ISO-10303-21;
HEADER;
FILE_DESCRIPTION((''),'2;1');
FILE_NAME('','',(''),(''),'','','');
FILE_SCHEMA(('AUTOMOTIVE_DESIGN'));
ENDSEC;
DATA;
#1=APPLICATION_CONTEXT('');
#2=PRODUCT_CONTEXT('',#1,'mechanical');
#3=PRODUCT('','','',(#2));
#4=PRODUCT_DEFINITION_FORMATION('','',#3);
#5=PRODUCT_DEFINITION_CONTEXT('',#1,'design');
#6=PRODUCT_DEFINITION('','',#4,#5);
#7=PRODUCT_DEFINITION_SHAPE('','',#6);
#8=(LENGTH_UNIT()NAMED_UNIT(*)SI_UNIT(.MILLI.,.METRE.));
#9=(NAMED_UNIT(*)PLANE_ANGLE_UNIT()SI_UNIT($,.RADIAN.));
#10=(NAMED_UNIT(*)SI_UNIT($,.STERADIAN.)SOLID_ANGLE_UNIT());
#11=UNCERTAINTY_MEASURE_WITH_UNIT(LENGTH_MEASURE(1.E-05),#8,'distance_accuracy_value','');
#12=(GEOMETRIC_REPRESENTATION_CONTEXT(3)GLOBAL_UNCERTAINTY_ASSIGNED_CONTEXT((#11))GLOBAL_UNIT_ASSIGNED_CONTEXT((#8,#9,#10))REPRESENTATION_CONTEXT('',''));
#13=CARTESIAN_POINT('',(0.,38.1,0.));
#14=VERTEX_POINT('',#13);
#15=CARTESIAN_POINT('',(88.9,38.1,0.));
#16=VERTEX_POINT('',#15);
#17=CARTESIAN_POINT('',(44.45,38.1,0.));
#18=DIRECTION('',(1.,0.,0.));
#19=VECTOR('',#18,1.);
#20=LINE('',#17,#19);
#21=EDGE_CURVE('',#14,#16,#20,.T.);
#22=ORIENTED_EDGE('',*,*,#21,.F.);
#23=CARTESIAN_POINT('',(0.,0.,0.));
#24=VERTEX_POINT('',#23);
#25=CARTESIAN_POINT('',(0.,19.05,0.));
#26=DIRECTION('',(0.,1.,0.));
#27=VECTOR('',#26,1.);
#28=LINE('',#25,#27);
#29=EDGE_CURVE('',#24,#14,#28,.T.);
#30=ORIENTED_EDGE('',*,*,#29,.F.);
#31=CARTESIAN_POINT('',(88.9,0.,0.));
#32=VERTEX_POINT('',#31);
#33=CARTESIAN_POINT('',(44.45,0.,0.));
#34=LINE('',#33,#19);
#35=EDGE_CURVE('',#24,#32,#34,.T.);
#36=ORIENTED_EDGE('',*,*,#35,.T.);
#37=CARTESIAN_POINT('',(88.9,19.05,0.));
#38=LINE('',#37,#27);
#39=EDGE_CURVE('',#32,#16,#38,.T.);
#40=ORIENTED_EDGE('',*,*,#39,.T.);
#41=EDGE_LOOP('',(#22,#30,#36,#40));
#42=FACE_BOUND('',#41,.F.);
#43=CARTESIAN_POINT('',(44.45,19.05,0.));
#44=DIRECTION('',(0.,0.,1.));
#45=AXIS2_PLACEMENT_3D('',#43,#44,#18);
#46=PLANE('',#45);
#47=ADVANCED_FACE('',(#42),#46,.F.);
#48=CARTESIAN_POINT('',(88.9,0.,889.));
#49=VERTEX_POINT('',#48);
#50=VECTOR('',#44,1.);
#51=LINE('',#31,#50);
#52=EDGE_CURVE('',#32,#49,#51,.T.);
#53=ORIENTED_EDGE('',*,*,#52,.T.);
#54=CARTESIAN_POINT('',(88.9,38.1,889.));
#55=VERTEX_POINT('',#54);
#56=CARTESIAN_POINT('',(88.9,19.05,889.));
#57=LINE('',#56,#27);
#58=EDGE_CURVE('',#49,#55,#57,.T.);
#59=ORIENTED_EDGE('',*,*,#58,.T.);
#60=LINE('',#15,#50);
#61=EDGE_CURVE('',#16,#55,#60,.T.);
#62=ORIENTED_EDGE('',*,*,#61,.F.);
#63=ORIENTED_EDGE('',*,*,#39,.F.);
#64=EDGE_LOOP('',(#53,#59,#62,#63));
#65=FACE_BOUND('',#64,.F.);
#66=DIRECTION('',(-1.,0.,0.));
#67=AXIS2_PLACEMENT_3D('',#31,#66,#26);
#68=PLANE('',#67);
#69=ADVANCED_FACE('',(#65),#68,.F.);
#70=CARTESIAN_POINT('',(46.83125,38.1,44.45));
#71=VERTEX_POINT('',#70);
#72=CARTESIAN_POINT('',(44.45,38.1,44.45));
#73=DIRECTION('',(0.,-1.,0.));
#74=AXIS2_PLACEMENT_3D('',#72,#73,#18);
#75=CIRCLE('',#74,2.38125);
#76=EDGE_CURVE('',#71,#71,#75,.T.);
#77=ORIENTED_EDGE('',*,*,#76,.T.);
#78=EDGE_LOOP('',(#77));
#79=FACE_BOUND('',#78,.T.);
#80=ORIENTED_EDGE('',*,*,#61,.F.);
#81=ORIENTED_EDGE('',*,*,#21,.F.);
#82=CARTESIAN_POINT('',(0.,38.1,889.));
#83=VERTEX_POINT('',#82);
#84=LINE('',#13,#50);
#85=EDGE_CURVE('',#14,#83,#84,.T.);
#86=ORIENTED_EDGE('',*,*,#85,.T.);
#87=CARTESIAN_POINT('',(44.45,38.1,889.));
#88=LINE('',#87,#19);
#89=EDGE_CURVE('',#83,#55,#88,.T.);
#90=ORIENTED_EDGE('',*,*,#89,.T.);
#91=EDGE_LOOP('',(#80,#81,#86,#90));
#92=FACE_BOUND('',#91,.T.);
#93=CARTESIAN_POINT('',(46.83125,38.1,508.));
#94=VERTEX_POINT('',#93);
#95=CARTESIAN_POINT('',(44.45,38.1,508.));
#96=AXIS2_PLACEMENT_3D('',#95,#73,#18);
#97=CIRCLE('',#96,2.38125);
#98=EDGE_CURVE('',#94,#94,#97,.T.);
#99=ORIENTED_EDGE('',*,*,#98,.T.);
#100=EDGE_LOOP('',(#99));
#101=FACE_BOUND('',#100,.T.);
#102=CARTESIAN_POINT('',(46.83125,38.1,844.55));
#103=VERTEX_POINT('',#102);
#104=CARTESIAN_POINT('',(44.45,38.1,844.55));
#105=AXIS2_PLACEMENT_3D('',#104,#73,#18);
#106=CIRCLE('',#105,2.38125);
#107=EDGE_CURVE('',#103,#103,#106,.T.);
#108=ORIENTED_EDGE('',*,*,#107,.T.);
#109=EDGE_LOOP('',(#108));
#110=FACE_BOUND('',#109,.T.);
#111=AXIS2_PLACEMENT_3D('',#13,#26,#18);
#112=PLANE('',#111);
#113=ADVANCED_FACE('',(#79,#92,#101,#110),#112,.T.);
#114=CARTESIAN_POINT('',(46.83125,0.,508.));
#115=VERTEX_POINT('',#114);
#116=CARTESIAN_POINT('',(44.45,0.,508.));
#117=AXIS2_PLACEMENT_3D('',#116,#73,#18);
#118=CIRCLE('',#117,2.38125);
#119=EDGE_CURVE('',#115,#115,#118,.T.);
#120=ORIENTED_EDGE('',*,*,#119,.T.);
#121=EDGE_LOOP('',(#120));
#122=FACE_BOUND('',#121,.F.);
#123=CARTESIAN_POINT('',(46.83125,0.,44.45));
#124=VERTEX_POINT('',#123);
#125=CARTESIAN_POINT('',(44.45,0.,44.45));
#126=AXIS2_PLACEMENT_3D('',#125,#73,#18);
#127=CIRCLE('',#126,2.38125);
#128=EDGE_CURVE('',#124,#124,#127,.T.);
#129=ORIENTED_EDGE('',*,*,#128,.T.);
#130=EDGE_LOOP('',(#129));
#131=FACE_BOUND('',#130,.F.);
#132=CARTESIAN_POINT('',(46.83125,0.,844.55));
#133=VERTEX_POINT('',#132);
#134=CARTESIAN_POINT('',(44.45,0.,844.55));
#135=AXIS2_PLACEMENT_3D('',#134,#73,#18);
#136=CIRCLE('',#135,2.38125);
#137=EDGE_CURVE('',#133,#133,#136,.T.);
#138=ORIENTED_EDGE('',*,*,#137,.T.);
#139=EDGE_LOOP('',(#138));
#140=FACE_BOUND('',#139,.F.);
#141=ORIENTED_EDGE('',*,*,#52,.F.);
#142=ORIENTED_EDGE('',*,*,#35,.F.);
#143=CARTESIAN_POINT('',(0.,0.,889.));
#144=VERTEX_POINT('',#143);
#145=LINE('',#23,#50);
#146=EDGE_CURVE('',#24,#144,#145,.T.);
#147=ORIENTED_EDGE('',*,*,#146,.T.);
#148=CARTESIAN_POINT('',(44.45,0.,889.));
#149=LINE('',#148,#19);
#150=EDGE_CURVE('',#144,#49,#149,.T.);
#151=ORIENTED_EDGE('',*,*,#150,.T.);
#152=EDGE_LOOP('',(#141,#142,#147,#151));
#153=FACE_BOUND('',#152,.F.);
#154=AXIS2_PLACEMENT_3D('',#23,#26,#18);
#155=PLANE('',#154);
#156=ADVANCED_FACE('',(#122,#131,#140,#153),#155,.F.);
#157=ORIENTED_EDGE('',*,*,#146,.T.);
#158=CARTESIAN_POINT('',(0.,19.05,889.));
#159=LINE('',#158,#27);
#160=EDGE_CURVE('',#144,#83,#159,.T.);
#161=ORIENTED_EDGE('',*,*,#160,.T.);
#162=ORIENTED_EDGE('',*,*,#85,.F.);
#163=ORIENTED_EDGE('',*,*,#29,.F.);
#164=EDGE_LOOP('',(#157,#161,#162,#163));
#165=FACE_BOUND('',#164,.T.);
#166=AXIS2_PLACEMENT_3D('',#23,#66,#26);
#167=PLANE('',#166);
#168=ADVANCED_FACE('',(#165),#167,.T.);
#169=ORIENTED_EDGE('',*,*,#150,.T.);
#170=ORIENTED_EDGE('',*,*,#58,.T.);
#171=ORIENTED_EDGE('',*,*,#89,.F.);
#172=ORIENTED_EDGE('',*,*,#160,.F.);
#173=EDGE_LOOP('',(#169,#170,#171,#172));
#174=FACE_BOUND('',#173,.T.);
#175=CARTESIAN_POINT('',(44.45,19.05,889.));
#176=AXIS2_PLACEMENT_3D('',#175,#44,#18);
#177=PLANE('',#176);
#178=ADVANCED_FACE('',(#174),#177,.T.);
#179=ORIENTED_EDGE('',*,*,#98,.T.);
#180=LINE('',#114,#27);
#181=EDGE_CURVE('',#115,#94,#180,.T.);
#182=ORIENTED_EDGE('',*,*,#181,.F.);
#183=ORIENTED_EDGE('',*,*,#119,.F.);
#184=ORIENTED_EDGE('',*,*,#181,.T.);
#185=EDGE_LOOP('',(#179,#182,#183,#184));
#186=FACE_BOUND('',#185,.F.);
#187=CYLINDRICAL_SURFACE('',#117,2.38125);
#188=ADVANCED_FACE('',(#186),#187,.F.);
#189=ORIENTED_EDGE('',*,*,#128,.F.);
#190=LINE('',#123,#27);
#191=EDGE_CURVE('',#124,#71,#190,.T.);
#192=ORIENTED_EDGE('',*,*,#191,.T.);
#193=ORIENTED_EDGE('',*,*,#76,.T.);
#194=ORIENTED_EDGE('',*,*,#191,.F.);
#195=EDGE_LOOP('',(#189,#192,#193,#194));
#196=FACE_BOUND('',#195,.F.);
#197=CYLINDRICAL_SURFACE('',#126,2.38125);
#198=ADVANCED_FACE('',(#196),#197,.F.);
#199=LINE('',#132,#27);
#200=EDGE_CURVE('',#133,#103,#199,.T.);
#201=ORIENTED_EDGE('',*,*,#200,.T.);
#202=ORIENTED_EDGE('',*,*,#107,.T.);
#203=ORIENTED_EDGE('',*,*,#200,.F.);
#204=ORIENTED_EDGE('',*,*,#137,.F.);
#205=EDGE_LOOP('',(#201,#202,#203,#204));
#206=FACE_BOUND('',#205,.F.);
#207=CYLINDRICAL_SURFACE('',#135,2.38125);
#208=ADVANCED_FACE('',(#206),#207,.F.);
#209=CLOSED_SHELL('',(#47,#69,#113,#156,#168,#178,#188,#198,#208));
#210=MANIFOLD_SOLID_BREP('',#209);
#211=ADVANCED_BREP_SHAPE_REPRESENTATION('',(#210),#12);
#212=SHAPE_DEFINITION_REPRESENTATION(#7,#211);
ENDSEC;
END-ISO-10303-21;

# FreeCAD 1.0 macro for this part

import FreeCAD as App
import Part
import Sketcher
Q = App.Units.Quantity

doc = App.newDocument("Part")
body = doc.addObject("PartDesign::Body", "Body")
body.AllowCompound = True

sketch1 = body.newObject("Sketcher::SketchObject", "Sketch")
sketch1.AttachmentSupport = (doc.getObject("XY_Plane"), [""])
sketch1.MapMode = "FlatFace"
sketch1.addGeometry([
    Part.Circle(App.Vector(44.45, 44.45, 0), App.Vector(0, 0, 1), 2.38125),
    Part.Circle(App.Vector(44.45, 844.55, 0), App.Vector(0, 0, 1), 2.38125),
    Part.Circle(App.Vector(44.45, 508, 0), App.Vector(0, 0, 1), 2.38125),
], False)
sketch1.addConstraint([
    Sketcher.Constraint("Equal", 0, 1),
    Sketcher.Constraint("Equal", 1, 2),
    Sketcher.Constraint("Vertical", 0, 3, 1, 3),
    Sketcher.Constraint("Vertical", 1, 3, 2, 3),
    Sketcher.Constraint("Diameter", 0, Q("0.1875 in")),
    Sketcher.Constraint("DistanceY", -1, 1, 2, 3, Q("20 in")),
    Sketcher.Constraint("DistanceY", 0, 3, 1, 3, Q("31.5 in")),
    Sketcher.Constraint("DistanceX", -1, 1, 0, 3, Q("1.75 in")),
    Sketcher.Constraint("DistanceY", -1, 1, 0, 3, Q("1.75 in")),
])
pad1 = body.newObject("PartDesign::Pad", "Pad")
pad1.Profile = sketch1
pad1.Length = Q("3 in")
pad1.Reversed = True
body2 = doc.addObject("PartDesign::Body", "Body001")
body2.AllowCompound = True
doc.recompute()

body.Placement = App.Placement(App.Vector(0, 0, 0), App.Rotation(App.Vector(1, 0, 0), 90))
boolean = body2.newObject("PartDesign::Boolean", "Boolean")
boolean.Type = "Fuse"
boolean.addObjects([body])
body3 = doc.addObject("PartDesign::Body", "Body002")

sketch2 = body3.newObject("Sketcher::SketchObject", "Sketch001")
sketch2.AttachmentSupport = (doc.getObject("XY_Plane002"), [""])
sketch2.MapMode = "FlatFace"
sketch2.addGeometry([
    Part.LineSegment(App.Vector(0, 38.1, 0), App.Vector(0, 0, 0)),
    Part.LineSegment(App.Vector(0, 0, 0), App.Vector(88.9, 0, 0)),
    Part.LineSegment(App.Vector(88.9, 0, 0), App.Vector(88.9, 38.1, 0)),
    Part.LineSegment(App.Vector(88.9, 38.1, 0), App.Vector(0, 38.1, 0)),
], False)
sketch2.addConstraint([
    Sketcher.Constraint("Coincident", 0, 2, 1, 1),
    Sketcher.Constraint("Coincident", 1, 2, 2, 1),
    Sketcher.Constraint("Coincident", 2, 2, 3, 1),
    Sketcher.Constraint("Coincident", 3, 2, 0, 1),
    Sketcher.Constraint("Vertical", 0),
    Sketcher.Constraint("Horizontal", 1),
    Sketcher.Constraint("Vertical", 2),
    Sketcher.Constraint("Horizontal", 3),
    Sketcher.Constraint("Coincident", 0, 2, -1, 1),
    Sketcher.Constraint("DistanceX", 1, 1, 1, 2, Q("3.5 in")),
    Sketcher.Constraint("DistanceY", 0, 2, 0, 1, Q("1.5 in")),
])
pad2 = body3.newObject("PartDesign::Pad", "Pad001")
pad2.Profile = sketch2
pad2.Length = Q("35 in")
doc.recompute()

boolean2 = body3.newObject("PartDesign::Boolean", "Boolean001")
boolean2.Type = "Cut"
boolean2.addObjects([body2])

doc.recompute()
